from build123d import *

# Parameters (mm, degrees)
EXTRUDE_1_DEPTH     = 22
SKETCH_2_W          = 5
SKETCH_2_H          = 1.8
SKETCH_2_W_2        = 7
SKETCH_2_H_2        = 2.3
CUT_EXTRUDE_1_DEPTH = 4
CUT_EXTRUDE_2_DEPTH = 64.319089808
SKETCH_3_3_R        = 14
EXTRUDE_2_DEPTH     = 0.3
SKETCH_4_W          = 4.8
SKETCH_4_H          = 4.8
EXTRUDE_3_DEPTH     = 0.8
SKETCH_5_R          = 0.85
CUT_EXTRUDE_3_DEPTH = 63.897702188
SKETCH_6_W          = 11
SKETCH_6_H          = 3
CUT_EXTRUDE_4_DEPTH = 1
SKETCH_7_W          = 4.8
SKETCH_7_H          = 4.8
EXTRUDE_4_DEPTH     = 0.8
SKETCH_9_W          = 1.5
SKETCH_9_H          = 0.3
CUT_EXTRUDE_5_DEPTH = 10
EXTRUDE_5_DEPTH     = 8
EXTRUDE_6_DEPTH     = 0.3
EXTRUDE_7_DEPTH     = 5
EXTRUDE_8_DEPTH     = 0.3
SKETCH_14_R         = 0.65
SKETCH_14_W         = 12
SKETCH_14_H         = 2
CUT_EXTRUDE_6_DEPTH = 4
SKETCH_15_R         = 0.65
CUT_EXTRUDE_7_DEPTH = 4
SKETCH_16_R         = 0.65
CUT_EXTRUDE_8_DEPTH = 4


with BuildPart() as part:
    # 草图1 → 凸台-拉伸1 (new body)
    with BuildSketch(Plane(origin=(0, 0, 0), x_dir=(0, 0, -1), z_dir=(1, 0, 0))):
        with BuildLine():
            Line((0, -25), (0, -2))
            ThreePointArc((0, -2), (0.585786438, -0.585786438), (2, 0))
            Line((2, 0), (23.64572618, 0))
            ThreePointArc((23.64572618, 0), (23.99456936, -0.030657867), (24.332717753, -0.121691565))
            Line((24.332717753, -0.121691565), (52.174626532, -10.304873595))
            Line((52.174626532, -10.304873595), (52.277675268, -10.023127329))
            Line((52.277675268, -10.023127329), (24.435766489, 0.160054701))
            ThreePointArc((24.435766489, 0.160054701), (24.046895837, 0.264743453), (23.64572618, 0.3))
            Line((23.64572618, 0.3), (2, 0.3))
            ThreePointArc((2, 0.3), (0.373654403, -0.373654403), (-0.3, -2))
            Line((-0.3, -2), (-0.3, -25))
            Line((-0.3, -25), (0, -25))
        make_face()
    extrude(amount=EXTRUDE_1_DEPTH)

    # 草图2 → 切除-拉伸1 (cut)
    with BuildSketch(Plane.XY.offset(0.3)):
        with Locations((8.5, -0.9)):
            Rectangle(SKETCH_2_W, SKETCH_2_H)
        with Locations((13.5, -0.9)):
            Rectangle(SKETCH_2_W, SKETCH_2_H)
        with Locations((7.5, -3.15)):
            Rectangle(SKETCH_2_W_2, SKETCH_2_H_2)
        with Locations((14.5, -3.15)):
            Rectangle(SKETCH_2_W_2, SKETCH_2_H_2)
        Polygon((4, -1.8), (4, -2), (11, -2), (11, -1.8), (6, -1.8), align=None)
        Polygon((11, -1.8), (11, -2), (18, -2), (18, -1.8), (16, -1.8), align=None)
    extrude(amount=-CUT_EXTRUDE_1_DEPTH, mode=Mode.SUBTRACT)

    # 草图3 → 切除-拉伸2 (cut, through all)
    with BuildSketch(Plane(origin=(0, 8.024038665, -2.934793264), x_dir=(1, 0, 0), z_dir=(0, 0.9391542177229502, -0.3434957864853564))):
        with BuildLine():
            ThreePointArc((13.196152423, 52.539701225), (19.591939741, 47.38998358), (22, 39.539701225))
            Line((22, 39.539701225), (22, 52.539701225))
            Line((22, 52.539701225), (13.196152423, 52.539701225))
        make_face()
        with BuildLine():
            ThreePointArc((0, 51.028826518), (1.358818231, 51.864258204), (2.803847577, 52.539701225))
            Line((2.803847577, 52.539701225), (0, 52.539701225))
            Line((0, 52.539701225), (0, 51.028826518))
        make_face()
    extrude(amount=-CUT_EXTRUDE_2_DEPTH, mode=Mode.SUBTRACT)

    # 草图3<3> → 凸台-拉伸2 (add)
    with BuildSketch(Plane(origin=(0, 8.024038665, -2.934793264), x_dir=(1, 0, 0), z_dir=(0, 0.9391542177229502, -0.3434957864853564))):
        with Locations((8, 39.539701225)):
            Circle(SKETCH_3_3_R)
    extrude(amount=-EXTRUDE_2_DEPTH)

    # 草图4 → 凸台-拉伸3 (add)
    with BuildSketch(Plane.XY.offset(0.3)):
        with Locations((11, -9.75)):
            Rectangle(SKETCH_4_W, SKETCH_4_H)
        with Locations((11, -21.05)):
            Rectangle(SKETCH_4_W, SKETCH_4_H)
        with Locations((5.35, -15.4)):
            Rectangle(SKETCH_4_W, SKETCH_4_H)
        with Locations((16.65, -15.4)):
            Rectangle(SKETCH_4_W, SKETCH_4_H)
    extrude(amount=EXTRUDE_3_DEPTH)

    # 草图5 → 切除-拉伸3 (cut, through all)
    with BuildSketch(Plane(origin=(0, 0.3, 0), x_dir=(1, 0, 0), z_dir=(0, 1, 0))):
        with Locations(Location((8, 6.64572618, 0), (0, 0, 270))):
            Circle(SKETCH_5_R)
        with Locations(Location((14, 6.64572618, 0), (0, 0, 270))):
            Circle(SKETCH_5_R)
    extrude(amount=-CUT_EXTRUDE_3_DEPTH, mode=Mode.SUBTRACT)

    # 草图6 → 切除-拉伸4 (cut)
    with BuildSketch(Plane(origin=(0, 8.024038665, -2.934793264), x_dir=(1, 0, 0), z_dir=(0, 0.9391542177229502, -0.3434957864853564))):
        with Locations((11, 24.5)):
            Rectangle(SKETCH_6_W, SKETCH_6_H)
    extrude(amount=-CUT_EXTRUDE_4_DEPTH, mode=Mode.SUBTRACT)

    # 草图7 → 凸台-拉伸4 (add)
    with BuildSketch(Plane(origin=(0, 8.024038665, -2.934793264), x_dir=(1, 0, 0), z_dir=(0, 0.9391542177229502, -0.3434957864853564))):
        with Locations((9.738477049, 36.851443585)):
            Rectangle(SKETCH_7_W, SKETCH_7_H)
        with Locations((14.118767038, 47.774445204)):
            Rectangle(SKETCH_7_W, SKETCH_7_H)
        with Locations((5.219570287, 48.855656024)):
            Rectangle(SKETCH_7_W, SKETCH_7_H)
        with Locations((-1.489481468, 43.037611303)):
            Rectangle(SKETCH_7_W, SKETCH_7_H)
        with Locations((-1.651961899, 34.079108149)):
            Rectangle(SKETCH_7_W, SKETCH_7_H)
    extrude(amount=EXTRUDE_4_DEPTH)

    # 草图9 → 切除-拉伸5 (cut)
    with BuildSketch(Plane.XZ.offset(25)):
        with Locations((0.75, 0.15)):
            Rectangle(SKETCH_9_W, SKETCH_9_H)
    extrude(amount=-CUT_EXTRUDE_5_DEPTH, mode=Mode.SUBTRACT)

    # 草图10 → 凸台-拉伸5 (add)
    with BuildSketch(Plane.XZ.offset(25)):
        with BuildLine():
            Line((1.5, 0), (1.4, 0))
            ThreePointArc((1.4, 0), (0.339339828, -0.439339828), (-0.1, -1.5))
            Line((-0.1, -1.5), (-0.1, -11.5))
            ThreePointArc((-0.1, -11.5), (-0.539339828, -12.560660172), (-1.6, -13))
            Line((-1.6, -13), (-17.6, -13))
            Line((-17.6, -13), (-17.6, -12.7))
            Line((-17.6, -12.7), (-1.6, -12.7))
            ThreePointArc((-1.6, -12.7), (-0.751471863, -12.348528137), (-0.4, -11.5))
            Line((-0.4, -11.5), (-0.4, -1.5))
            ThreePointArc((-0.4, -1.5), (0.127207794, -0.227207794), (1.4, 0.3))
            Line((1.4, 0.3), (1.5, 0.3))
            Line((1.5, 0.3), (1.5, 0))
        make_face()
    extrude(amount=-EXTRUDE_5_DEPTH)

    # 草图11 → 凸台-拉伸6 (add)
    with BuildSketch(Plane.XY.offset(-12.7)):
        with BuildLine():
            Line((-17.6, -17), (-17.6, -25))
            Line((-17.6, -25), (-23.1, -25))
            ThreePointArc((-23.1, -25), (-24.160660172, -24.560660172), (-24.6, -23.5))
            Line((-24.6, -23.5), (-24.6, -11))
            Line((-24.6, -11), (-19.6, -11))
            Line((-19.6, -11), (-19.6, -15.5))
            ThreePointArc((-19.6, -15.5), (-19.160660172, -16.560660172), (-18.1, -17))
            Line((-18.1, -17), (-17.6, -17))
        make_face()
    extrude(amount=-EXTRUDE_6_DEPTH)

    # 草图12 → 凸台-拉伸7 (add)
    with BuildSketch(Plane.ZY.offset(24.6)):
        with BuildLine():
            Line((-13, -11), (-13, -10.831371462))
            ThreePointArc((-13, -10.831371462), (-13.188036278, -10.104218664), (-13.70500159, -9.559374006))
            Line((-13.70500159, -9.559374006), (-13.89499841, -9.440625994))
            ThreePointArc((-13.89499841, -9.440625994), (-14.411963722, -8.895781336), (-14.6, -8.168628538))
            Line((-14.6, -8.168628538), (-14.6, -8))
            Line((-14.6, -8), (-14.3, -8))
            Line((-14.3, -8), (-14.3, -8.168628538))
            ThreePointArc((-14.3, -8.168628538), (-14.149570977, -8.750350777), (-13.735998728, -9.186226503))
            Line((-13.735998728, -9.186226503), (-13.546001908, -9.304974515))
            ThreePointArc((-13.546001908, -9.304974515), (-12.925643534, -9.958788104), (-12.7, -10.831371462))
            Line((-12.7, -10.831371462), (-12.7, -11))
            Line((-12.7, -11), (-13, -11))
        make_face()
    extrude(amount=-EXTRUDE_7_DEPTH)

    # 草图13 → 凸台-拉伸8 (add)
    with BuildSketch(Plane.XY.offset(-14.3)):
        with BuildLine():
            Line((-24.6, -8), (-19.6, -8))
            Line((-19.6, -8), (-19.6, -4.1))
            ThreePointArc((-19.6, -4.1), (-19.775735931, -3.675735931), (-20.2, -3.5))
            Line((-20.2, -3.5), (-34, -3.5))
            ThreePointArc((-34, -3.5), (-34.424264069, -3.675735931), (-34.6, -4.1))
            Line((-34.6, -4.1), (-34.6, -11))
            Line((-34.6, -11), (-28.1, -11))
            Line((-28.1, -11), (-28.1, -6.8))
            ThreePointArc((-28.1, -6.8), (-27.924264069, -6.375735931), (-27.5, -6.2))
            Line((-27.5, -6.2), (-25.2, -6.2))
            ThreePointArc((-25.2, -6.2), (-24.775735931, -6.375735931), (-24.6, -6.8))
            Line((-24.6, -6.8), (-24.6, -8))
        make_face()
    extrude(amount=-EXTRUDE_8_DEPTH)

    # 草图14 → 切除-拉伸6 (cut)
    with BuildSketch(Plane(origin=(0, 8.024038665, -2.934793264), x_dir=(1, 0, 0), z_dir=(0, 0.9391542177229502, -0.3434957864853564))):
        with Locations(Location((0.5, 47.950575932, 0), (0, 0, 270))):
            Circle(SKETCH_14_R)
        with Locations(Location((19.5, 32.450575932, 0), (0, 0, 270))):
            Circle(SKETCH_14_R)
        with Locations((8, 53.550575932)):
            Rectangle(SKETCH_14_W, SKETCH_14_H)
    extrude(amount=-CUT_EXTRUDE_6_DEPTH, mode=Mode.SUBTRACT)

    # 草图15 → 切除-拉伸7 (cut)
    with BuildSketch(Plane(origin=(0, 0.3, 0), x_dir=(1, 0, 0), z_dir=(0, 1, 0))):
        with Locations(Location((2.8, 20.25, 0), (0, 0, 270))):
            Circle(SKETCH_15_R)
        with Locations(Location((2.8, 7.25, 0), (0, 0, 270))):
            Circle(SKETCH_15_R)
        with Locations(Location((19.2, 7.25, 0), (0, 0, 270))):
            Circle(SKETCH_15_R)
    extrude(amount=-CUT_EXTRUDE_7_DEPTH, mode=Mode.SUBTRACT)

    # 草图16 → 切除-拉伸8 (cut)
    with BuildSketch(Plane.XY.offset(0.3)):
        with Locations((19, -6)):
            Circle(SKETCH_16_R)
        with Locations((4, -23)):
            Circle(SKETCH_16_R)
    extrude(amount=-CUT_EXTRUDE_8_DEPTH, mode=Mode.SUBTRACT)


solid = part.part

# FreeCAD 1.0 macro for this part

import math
import FreeCAD as App
import Part
import Sketcher
Q = App.Units.Quantity


def add_polygon(sketch, points):
    """Adds a closed chain of lines whose ends are joined by coincident constraints."""
    first, n = sketch.GeometryCount, len(points)
    for a, b in zip(points, points[1:] + points[:1]):
        sketch.addGeometry(Part.LineSegment(App.Vector(*a, 0), App.Vector(*b, 0)), False)
    for i in range(n):
        sketch.addConstraint(Sketcher.Constraint("Coincident", first + i, 2, first + (i + 1) % n, 1))

doc = App.newDocument("Part")
body = doc.addObject("PartDesign::Body", "Body")

# Sketch on YZ plane
sketch1 = body.newObject("Sketcher::SketchObject", "Sketch")
sketch1.AttachmentSupport = (doc.getObject("YZ_Plane"), [""])
sketch1.MapMode = "FlatFace"
sketch1.addGeometry(Part.LineSegment(App.Vector(-25, 0, 0), App.Vector(-2, 0, 0)), False)
sketch1.addGeometry(Part.ArcOfCircle(Part.Circle(App.Vector(-2, -2, 0), App.Vector(0, 0, 1), 2), math.radians(0), math.radians(90)), False)
sketch1.addGeometry(Part.LineSegment(App.Vector(0, -2, 0), App.Vector(0, -23.65, 0)), False)
sketch1.addGeometry(Part.ArcOfCircle(Part.Circle(App.Vector(-2, -23.65, 0), App.Vector(0, 0, 1), 2), math.radians(-20), math.radians(0)), False)
sketch1.addGeometry(Part.LineSegment(App.Vector(-0.12, -24.33, 0), App.Vector(-10.3, -52.17, 0)), False)
sketch1.addGeometry(Part.LineSegment(App.Vector(-10.3, -52.17, 0), App.Vector(-10.02, -52.28, 0)), False)
sketch1.addGeometry(Part.LineSegment(App.Vector(-10.02, -52.28, 0), App.Vector(0.16, -24.44, 0)), False)
sketch1.addGeometry(Part.ArcOfCircle(Part.Circle(App.Vector(-2, -23.65, 0), App.Vector(0, 0, 1), 2.3), math.radians(-20), math.radians(0)), False)
sketch1.addGeometry(Part.LineSegment(App.Vector(0.3, -23.65, 0), App.Vector(0.3, -2, 0)), False)
sketch1.addGeometry(Part.ArcOfCircle(Part.Circle(App.Vector(-2, -2, 0), App.Vector(0, 0, 1), 2.3), math.radians(0), math.radians(90)), False)
sketch1.addGeometry(Part.LineSegment(App.Vector(-2, 0.3, 0), App.Vector(-25, 0.3, 0)), False)
sketch1.addGeometry(Part.LineSegment(App.Vector(-25, 0.3, 0), App.Vector(-25, 0, 0)), False)
sketch1.addConstraint(Sketcher.Constraint("Tangent", 0, 2, 1, 2))
sketch1.addConstraint(Sketcher.Constraint("Tangent", 1, 1, 2, 1))
sketch1.addConstraint(Sketcher.Constraint("Tangent", 2, 2, 3, 2))
sketch1.addConstraint(Sketcher.Constraint("Tangent", 3, 1, 4, 1))
sketch1.addConstraint(Sketcher.Constraint("Coincident", 4, 2, 5, 1))
sketch1.addConstraint(Sketcher.Constraint("Coincident", 5, 2, 6, 1))
sketch1.addConstraint(Sketcher.Constraint("Tangent", 6, 2, 7, 1))
sketch1.addConstraint(Sketcher.Constraint("Tangent", 7, 2, 8, 1))
sketch1.addConstraint(Sketcher.Constraint("Tangent", 8, 2, 9, 1))
sketch1.addConstraint(Sketcher.Constraint("Tangent", 9, 2, 10, 1))
sketch1.addConstraint(Sketcher.Constraint("Coincident", 10, 2, 11, 1))
sketch1.addConstraint(Sketcher.Constraint("Coincident", 11, 2, 0, 1))
sketch1.addConstraint(Sketcher.Constraint("Horizontal", 0))
sketch1.addConstraint(Sketcher.Constraint("Vertical", 2))
sketch1.addConstraint(Sketcher.Constraint("Vertical", 8))
sketch1.addConstraint(Sketcher.Constraint("Horizontal", 10))
sketch1.addConstraint(Sketcher.Constraint("Vertical", 11))
sketch1.addConstraint(Sketcher.Constraint("Coincident", 7, 3, 3, 3))
sketch1.addConstraint(Sketcher.Constraint("Coincident", 9, 3, 1, 3))
sketch1.addConstraint(Sketcher.Constraint("Equal", 1, 3))
sketch1.addConstraint(Sketcher.Constraint("PointOnObject", 0, 2, -1))
sketch1.addConstraint(Sketcher.Constraint("PointOnObject", 1, 1, -2))
sketch1.addConstraint(Sketcher.Constraint("Perpendicular", 4, 5))
sketch1.addConstraint(Sketcher.Constraint("Perpendicular", 5, 6))
sketch1.addConstraint(Sketcher.Constraint("Radius", 1, 2.0))
sketch1.addConstraint(Sketcher.Constraint("Radius", 7, 2.3))
sketch1.addConstraint(Sketcher.Constraint("DistanceX", 0, 1, 0, 2, 23.0))
sketch1.addConstraint(Sketcher.Constraint("Angle", 4, Q("-110.09 deg")))
sketch1.addConstraint(Sketcher.Constraint("DistanceY", 4, 2, 7, 3, 28.5289))
sketch1.addConstraint(Sketcher.Constraint("DistanceY", 2, 2, 2, 1, 21.645726))
pad1 = body.newObject("PartDesign::Pad", "Pad")
pad1.Profile = sketch1
pad1.Length = 22

# Sketch on XY plane
sketch2 = body.newObject("Sketcher::SketchObject", "Sketch001")
sketch2.AttachmentSupport = (doc.getObject("XY_Plane"), [""])
sketch2.MapMode = "FlatFace"
sketch2.AttachmentOffset = App.Placement(App.Vector(0, 0, 0.3), App.Rotation())
add_polygon(sketch2, [(6, 0), (6, -1.8), (4, -1.8), (4, -4.3), (18, -4.3), (18, -1.8), (16, -1.8), (16, 0)])  # lines 0-7
sketch2.addConstraint(Sketcher.Constraint("Vertical", 0))
sketch2.addConstraint(Sketcher.Constraint("Horizontal", 1))
sketch2.addConstraint(Sketcher.Constraint("Vertical", 2))
sketch2.addConstraint(Sketcher.Constraint("Horizontal", 3))
sketch2.addConstraint(Sketcher.Constraint("Vertical", 4))
sketch2.addConstraint(Sketcher.Constraint("Horizontal", 5))
sketch2.addConstraint(Sketcher.Constraint("Vertical", 6))
sketch2.addConstraint(Sketcher.Constraint("Horizontal", 7))
sketch2.addConstraint(Sketcher.Constraint("PointOnObject", 6, 2, -1))
sketch2.addConstraint(Sketcher.Constraint("Horizontal", 1, 2, 4, 2))
sketch2.addConstraint(Sketcher.Constraint("Equal", 1, 5))
sketch2.addConstraint(Sketcher.Constraint("DistanceX", 1, 2, 1, 1, 2.0))
sketch2.addConstraint(Sketcher.Constraint("DistanceX", 3, 1, 3, 2, 14.0))
sketch2.addConstraint(Sketcher.Constraint("DistanceY", 0, 2, 0, 1, 1.8))
sketch2.addConstraint(Sketcher.Constraint("DistanceY", 2, 2, 2, 1, 2.5))
sketch2.addConstraint(Sketcher.Constraint("DistanceX", -1, 1, 0, 2, 6.0))
pocket1 = body.newObject("PartDesign::Pocket", "Pocket")
pocket1.Profile = sketch2
pocket1.Length = 4

# Sketch on an angled plane
sketch3 = body.newObject("Sketcher::SketchObject", "Sketch002")
sketch3.Placement = App.Placement(App.Vector(0, 8.024039, -2.934793), App.Rotation(App.Vector(1, 0, 0), App.Vector(0, -0.343495786, -0.939154218), App.Vector(0, 0.939154218, -0.343495786), "ZXY"))
sketch3.addGeometry(Part.ArcOfCircle(Part.Circle(App.Vector(8, 39.5, 0), App.Vector(0, 0, 1), 14), math.radians(0), math.radians(68)), False)
sketch3.addGeometry(Part.LineSegment(App.Vector(22, 39.5, 0), App.Vector(22, 52.5, 0)), False)
sketch3.addGeometry(Part.LineSegment(App.Vector(22, 52.5, 0), App.Vector(13.2, 52.5, 0)), False)
sketch3.addGeometry(Part.ArcOfCircle(Part.Circle(App.Vector(8, 39.5, 0), App.Vector(0, 0, 1), 14), math.radians(111.79), math.radians(124.85)), False)
sketch3.addGeometry(Part.LineSegment(App.Vector(2.8, 52.5, 0), App.Vector(0, 52.5, 0)), False)
sketch3.addGeometry(Part.LineSegment(App.Vector(0, 52.5, 0), App.Vector(0, 51, 0)), False)
sketch3.addConstraint(Sketcher.Constraint("Tangent", 0, 1, 1, 1))
sketch3.addConstraint(Sketcher.Constraint("Coincident", 1, 2, 2, 1))
sketch3.addConstraint(Sketcher.Constraint("Coincident", 2, 2, 0, 2))
sketch3.addConstraint(Sketcher.Constraint("Coincident", 3, 1, 4, 1))
sketch3.addConstraint(Sketcher.Constraint("Coincident", 4, 2, 5, 1))
sketch3.addConstraint(Sketcher.Constraint("Coincident", 5, 2, 3, 2))
sketch3.addConstraint(Sketcher.Constraint("Vertical", 1))
sketch3.addConstraint(Sketcher.Constraint("Horizontal", 2))
sketch3.addConstraint(Sketcher.Constraint("Horizontal", 4))
sketch3.addConstraint(Sketcher.Constraint("Vertical", 5))
sketch3.addConstraint(Sketcher.Constraint("Coincident", 3, 3, 0, 3))
sketch3.addConstraint(Sketcher.Constraint("Equal", 0, 3))
sketch3.addConstraint(Sketcher.Constraint("PointOnObject", 4, 2, -2))
sketch3.addConstraint(Sketcher.Constraint("Horizontal", 2, 2, 3, 1))
sketch3.addConstraint(Sketcher.Constraint("Radius", 0, 14.0))
sketch3.addConstraint(Sketcher.Constraint("DistanceY", 1, 1, 1, 2, 13.0))
sketch3.addConstraint(Sketcher.Constraint("DistanceX", -1, 1, 0, 3, 8.0))
sketch3.addConstraint(Sketcher.Constraint("DistanceY", -1, 1, 0, 3, 39.539701))
pocket2 = body.newObject("PartDesign::Pocket", "Pocket001")
pocket2.Profile = sketch3
pocket2.Type = "ThroughAll"

# Sketch on an angled plane
sketch4 = body.newObject("Sketcher::SketchObject", "Sketch003")
sketch4.Placement = App.Placement(App.Vector(0, 8.024039, -2.934793), App.Rotation(App.Vector(1, 0, 0), App.Vector(0, -0.343495786, -0.939154218), App.Vector(0, 0.939154218, -0.343495786), "ZXY"))
sketch4.addGeometry(Part.Circle(App.Vector(8, 40, 0), App.Vector(0, 0, 1), 14), False)
sketch4.addConstraint(Sketcher.Constraint("Diameter", 0, 28.0))
sketch4.addConstraint(Sketcher.Constraint("DistanceX", -1, 1, 0, 3, 8.0))
sketch4.addConstraint(Sketcher.Constraint("DistanceY", -1, 1, 0, 3, 39.539701))
pad2 = body.newObject("PartDesign::Pad", "Pad001")
pad2.Profile = sketch4
pad2.Length = 0.3
pad2.Reversed = True

# Sketch on XY plane
sketch5 = body.newObject("Sketcher::SketchObject", "Sketch004")
sketch5.AttachmentSupport = (doc.getObject("XY_Plane"), [""])
sketch5.MapMode = "FlatFace"
sketch5.AttachmentOffset = App.Placement(App.Vector(0, 0, 0.3), App.Rotation())
add_polygon(sketch5, [(8.6, -7.3), (8.6, -12.2), (13.4, -12.2), (13.4, -7.3)])  # lines 0-3
add_polygon(sketch5, [(8.6, -18.6), (8.6, -23.4), (13.4, -23.4), (13.4, -18.6)])  # lines 4-7
add_polygon(sketch5, [(3, -13), (3, -17.8), (7.8, -17.8), (7.8, -13)])  # lines 8-11
add_polygon(sketch5, [(14.2, -13), (14.2, -17.8), (19.1, -17.8), (19.1, -13)])  # lines 12-15
sketch5.addConstraint(Sketcher.Constraint("Vertical", 0))
sketch5.addConstraint(Sketcher.Constraint("Horizontal", 1))
sketch5.addConstraint(Sketcher.Constraint("Vertical", 2))
sketch5.addConstraint(Sketcher.Constraint("Horizontal", 3))
sketch5.addConstraint(Sketcher.Constraint("Vertical", 4))
sketch5.addConstraint(Sketcher.Constraint("Horizontal", 5))
sketch5.addConstraint(Sketcher.Constraint("Vertical", 6))
sketch5.addConstraint(Sketcher.Constraint("Horizontal", 7))
sketch5.addConstraint(Sketcher.Constraint("Vertical", 8))
sketch5.addConstraint(Sketcher.Constraint("Horizontal", 9))
sketch5.addConstraint(Sketcher.Constraint("Vertical", 10))
sketch5.addConstraint(Sketcher.Constraint("Horizontal", 11))
sketch5.addConstraint(Sketcher.Constraint("Vertical", 12))
sketch5.addConstraint(Sketcher.Constraint("Horizontal", 13))
sketch5.addConstraint(Sketcher.Constraint("Vertical", 14))
sketch5.addConstraint(Sketcher.Constraint("Horizontal", 15))
sketch5.addConstraint(Sketcher.Constraint("Horizontal", 9, 2, 12, 2))
sketch5.addConstraint(Sketcher.Constraint("Horizontal", 11, 2, 14, 2))
sketch5.addConstraint(Sketcher.Constraint("Vertical", 3, 2, 4, 2))
sketch5.addConstraint(Sketcher.Constraint("Vertical", 2, 2, 5, 2))
sketch5.addConstraint(Sketcher.Constraint("Equal", 7, 9))
sketch5.addConstraint(Sketcher.Constraint("Equal", 11, 13))
sketch5.addConstraint(Sketcher.Constraint("Equal", 15, 0))
sketch5.addConstraint(Sketcher.Constraint("Equal", 2, 4))
sketch5.addConstraint(Sketcher.Constraint("Equal", 6, 8))
sketch5.addConstraint(Sketcher.Constraint("DistanceX", 1, 1, 1, 2, 4.8))
sketch5.addConstraint(Sketcher.Constraint("DistanceY", 10, 2, -1, 1, 13.0))
sketch5.addConstraint(Sketcher.Constraint("DistanceX", -1, 1, 0, 2, 8.6))
sketch5.addConstraint(Sketcher.Constraint("DistanceY", 4, 2, 0, 2, 11.3))
sketch5.addConstraint(Sketcher.Constraint("DistanceX", 9, 2, 12, 2, 6.5))
sketch5.addConstraint(Sketcher.Constraint("DistanceY", 0, 2, -1, 1, 12.15))
sketch5.addConstraint(Sketcher.Constraint("DistanceX", -1, 1, 8, 2, 2.95))
pad3 = body.newObject("PartDesign::Pad", "Pad002")
pad3.Profile = sketch5
pad3.Length = 0.8

# Sketch on XZ plane
sketch6 = body.newObject("Sketcher::SketchObject", "Sketch005")
sketch6.AttachmentSupport = (doc.getObject("XZ_Plane"), [""])
sketch6.MapMode = "FlatFace"
sketch6.AttachmentOffset = App.Placement(App.Vector(0, 0, -0.3), App.Rotation())
sketch6.addGeometry(Part.Circle(App.Vector(8, -6.6, 0), App.Vector(0, 0, 1), 0.8), False)
sketch6.addGeometry(Part.Circle(App.Vector(14, -6.6, 0), App.Vector(0, 0, 1), 0.8), False)
sketch6.addConstraint(Sketcher.Constraint("Equal", 0, 1))
sketch6.addConstraint(Sketcher.Constraint("Horizontal", 0, 3, 1, 3))
sketch6.addConstraint(Sketcher.Constraint("Diameter", 0, 1.7))
sketch6.addConstraint(Sketcher.Constraint("DistanceX", -1, 1, 0, 3, 8.0))
sketch6.addConstraint(Sketcher.Constraint("DistanceX", -1, 1, 1, 3, 14.0))
sketch6.addConstraint(Sketcher.Constraint("DistanceY", 0, 3, -1, 1, 6.645726))
pocket3 = body.newObject("PartDesign::Pocket", "Pocket002")
pocket3.Profile = sketch6
pocket3.Type = "ThroughAll"
pocket3.Reversed = True

# Sketch on an angled plane
sketch7 = body.newObject("Sketcher::SketchObject", "Sketch006")
sketch7.Placement = App.Placement(App.Vector(0, 8.024039, -2.934793), App.Rotation(App.Vector(1, 0, 0), App.Vector(0, -0.343495786, -0.939154218), App.Vector(0, 0.939154218, -0.343495786), "ZXY"))
add_polygon(sketch7, [(5.5, 26), (5.5, 23), (16.5, 23), (16.5, 26)])  # lines 0-3
sketch7.addConstraint(Sketcher.Constraint("Vertical", 0))
sketch7.addConstraint(Sketcher.Constraint("Horizontal", 1))
sketch7.addConstraint(Sketcher.Constraint("Vertical", 2))
sketch7.addConstraint(Sketcher.Constraint("Horizontal", 3))
sketch7.addConstraint(Sketcher.Constraint("DistanceX", 1, 1, 1, 2, 11.0))
sketch7.addConstraint(Sketcher.Constraint("DistanceY", 0, 2, 0, 1, 3.0))
sketch7.addConstraint(Sketcher.Constraint("DistanceY", -1, 1, 0, 2, 23.0))
sketch7.addConstraint(Sketcher.Constraint("DistanceX", -1, 1, 0, 2, 5.5))
pocket4 = body.newObject("PartDesign::Pocket", "Pocket003")
pocket4.Profile = sketch7
pocket4.Length = 1

# Sketch on an angled plane
sketch8 = body.newObject("Sketcher::SketchObject", "Sketch007")
sketch8.Placement = App.Placement(App.Vector(0, 8.024039, -2.934793), App.Rotation(App.Vector(1, 0, 0), App.Vector(0, -0.343495786, -0.939154218), App.Vector(0, 0.939154218, -0.343495786), "ZXY"))
add_polygon(sketch8, [(7.3, 39.3), (7.3, 34.5), (12.1, 34.5), (12.1, 39.3)])  # lines 0-3
add_polygon(sketch8, [(11.7, 50.2), (11.7, 45.4), (16.5, 45.4), (16.5, 50.2)])  # lines 4-7
add_polygon(sketch8, [(2.8, 51.3), (2.8, 46.5), (7.6, 46.5), (7.6, 51.3)])  # lines 8-11
add_polygon(sketch8, [(-3.9, 45.4), (-3.9, 40.6), (0.9, 40.6), (0.9, 45.4)])  # lines 12-15
add_polygon(sketch8, [(-4.1, 36.5), (-4.1, 31.7), (0.7, 31.7), (0.7, 36.5)])  # lines 16-19
sketch8.addConstraint(Sketcher.Constraint("Vertical", 0))
sketch8.addConstraint(Sketcher.Constraint("Horizontal", 1))
sketch8.addConstraint(Sketcher.Constraint("Vertical", 2))
sketch8.addConstraint(Sketcher.Constraint("Horizontal", 3))
sketch8.addConstraint(Sketcher.Constraint("Vertical", 4))
sketch8.addConstraint(Sketcher.Constraint("Horizontal", 5))
sketch8.addConstraint(Sketcher.Constraint("Vertical", 6))
sketch8.addConstraint(Sketcher.Constraint("Horizontal", 7))
sketch8.addConstraint(Sketcher.Constraint("Vertical", 8))
sketch8.addConstraint(Sketcher.Constraint("Horizontal", 9))
sketch8.addConstraint(Sketcher.Constraint("Vertical", 10))
sketch8.addConstraint(Sketcher.Constraint("Horizontal", 11))
sketch8.addConstraint(Sketcher.Constraint("Vertical", 12))
sketch8.addConstraint(Sketcher.Constraint("Horizontal", 13))
sketch8.addConstraint(Sketcher.Constraint("Vertical", 14))
sketch8.addConstraint(Sketcher.Constraint("Horizontal", 15))
sketch8.addConstraint(Sketcher.Constraint("Vertical", 16))
sketch8.addConstraint(Sketcher.Constraint("Horizontal", 17))
sketch8.addConstraint(Sketcher.Constraint("Vertical", 18))
sketch8.addConstraint(Sketcher.Constraint("Horizontal", 19))
sketch8.addConstraint(Sketcher.Constraint("Equal", 3, 5))
sketch8.addConstraint(Sketcher.Constraint("Equal", 7, 9))
sketch8.addConstraint(Sketcher.Constraint("Equal", 11, 13))
sketch8.addConstraint(Sketcher.Constraint("Equal", 15, 17))
sketch8.addConstraint(Sketcher.Constraint("Equal", 19, 0))
sketch8.addConstraint(Sketcher.Constraint("Equal", 2, 4))
sketch8.addConstraint(Sketcher.Constraint("Equal", 6, 8))
sketch8.addConstraint(Sketcher.Constraint("Equal", 10, 12))
sketch8.addConstraint(Sketcher.Constraint("Equal", 14, 16))
sketch8.addConstraint(Sketcher.Constraint("DistanceX", 1, 1, 1, 2, 4.8))
sketch8.addConstraint(Sketcher.Constraint("DistanceY", 2, 2, 4, 2, 6.123002))
sketch8.addConstraint(Sketcher.Constraint("DistanceX", -1, 1, 8, 2, 2.81957))
sketch8.addConstraint(Sketcher.Constraint("DistanceX", 12, 2, -1, 1, 3.889481))
sketch8.addConstraint(Sketcher.Constraint("DistanceY", -1, 1, 12, 2, 40.637611))
sketch8.addConstraint(Sketcher.Constraint("DistanceX", 16, 2, -1, 1, 4.051962))
sketch8.addConstraint(Sketcher.Constraint("DistanceY", -1, 1, 16, 2, 31.679108))
sketch8.addConstraint(Sketcher.Constraint("DistanceX", 4, 2, 2, 2, 0.41971))
sketch8.addConstraint(Sketcher.Constraint("DistanceY", 4, 2, 8, 2, 1.081211))
sketch8.addConstraint(Sketcher.Constraint("DistanceX", 12, 2, 3, 2, 11.227959))
sketch8.addConstraint(Sketcher.Constraint("DistanceY", -1, 1, 0, 2, 34.451444))
pad4 = body.newObject("PartDesign::Pad", "Pad003")
pad4.Profile = sketch8
pad4.Length = 0.8

# Sketch on XZ plane
sketch9 = body.newObject("Sketcher::SketchObject", "Sketch008")
sketch9.AttachmentSupport = (doc.getObject("XZ_Plane"), [""])
sketch9.MapMode = "FlatFace"
sketch9.AttachmentOffset = App.Placement(App.Vector(0, 0, 25), App.Rotation())
add_polygon(sketch9, [(0, 0.3), (0, 0), (1.5, 0), (1.5, 0.3)])  # lines 0-3
sketch9.addConstraint(Sketcher.Constraint("Vertical", 0))
sketch9.addConstraint(Sketcher.Constraint("Horizontal", 1))
sketch9.addConstraint(Sketcher.Constraint("Vertical", 2))
sketch9.addConstraint(Sketcher.Constraint("Horizontal", 3))
sketch9.addConstraint(Sketcher.Constraint("Coincident", 0, 2, -1, 1))
sketch9.addConstraint(Sketcher.Constraint("DistanceX", 1, 1, 1, 2, 1.5))
sketch9.addConstraint(Sketcher.Constraint("DistanceY", 0, 2, 0, 1, 0.3))
pocket5 = body.newObject("PartDesign::Pocket", "Pocket004")
pocket5.Profile = sketch9
pocket5.Length = 10

# Sketch on XZ plane
sketch10 = body.newObject("Sketcher::SketchObject", "Sketch009")
sketch10.AttachmentSupport = (doc.getObject("XZ_Plane"), [""])
sketch10.MapMode = "FlatFace"
sketch10.AttachmentOffset = App.Placement(App.Vector(0, 0, 25), App.Rotation())
sketch10.addGeometry(Part.LineSegment(App.Vector(1.4, 0, 0), App.Vector(1.5, 0, 0)), False)
sketch10.addGeometry(Part.LineSegment(App.Vector(1.5, 0, 0), App.Vector(1.5, 0.3, 0)), False)
sketch10.addGeometry(Part.LineSegment(App.Vector(1.5, 0.3, 0), App.Vector(1.4, 0.3, 0)), False)
sketch10.addGeometry(Part.ArcOfCircle(Part.Circle(App.Vector(1.4, -1.5, 0), App.Vector(0, 0, 1), 1.8), math.radians(90), math.radians(180)), False)
sketch10.addGeometry(Part.LineSegment(App.Vector(-0.4, -1.5, 0), App.Vector(-0.4, -11.5, 0)), False)
sketch10.addGeometry(Part.ArcOfCircle(Part.Circle(App.Vector(-1.6, -11.5, 0), App.Vector(0, 0, 1), 1.2), math.radians(-90), math.radians(0)), False)
sketch10.addGeometry(Part.LineSegment(App.Vector(-1.6, -12.7, 0), App.Vector(-17.6, -12.7, 0)), False)
sketch10.addGeometry(Part.LineSegment(App.Vector(-17.6, -12.7, 0), App.Vector(-17.6, -13, 0)), False)
sketch10.addGeometry(Part.LineSegment(App.Vector(-17.6, -13, 0), App.Vector(-1.6, -13, 0)), False)
sketch10.addGeometry(Part.ArcOfCircle(Part.Circle(App.Vector(-1.6, -11.5, 0), App.Vector(0, 0, 1), 1.5), math.radians(-90), math.radians(0)), False)
sketch10.addGeometry(Part.LineSegment(App.Vector(-0.1, -11.5, 0), App.Vector(-0.1, -1.5, 0)), False)
sketch10.addGeometry(Part.ArcOfCircle(Part.Circle(App.Vector(1.4, -1.5, 0), App.Vector(0, 0, 1), 1.5), math.radians(90), math.radians(180)), False)
sketch10.addConstraint(Sketcher.Constraint("Coincident", 0, 2, 1, 1))
sketch10.addConstraint(Sketcher.Constraint("Coincident", 1, 2, 2, 1))
sketch10.addConstraint(Sketcher.Constraint("Tangent", 2, 2, 3, 1))
sketch10.addConstraint(Sketcher.Constraint("Tangent", 3, 2, 4, 1))
sketch10.addConstraint(Sketcher.Constraint("Tangent", 4, 2, 5, 2))
sketch10.addConstraint(Sketcher.Constraint("Tangent", 5, 1, 6, 1))
sketch10.addConstraint(Sketcher.Constraint("Coincident", 6, 2, 7, 1))
sketch10.addConstraint(Sketcher.Constraint("Coincident", 7, 2, 8, 1))
sketch10.addConstraint(Sketcher.Constraint("Tangent", 8, 2, 9, 1))
sketch10.addConstraint(Sketcher.Constraint("Tangent", 9, 2, 10, 1))
sketch10.addConstraint(Sketcher.Constraint("Tangent", 10, 2, 11, 2))
sketch10.addConstraint(Sketcher.Constraint("Tangent", 11, 1, 0, 1))
sketch10.addConstraint(Sketcher.Constraint("Horizontal", 0))
sketch10.addConstraint(Sketcher.Constraint("Vertical", 1))
sketch10.addConstraint(Sketcher.Constraint("Horizontal", 2))
sketch10.addConstraint(Sketcher.Constraint("Vertical", 4))
sketch10.addConstraint(Sketcher.Constraint("Horizontal", 6))
sketch10.addConstraint(Sketcher.Constraint("Vertical", 7))
sketch10.addConstraint(Sketcher.Constraint("Horizontal", 8))
sketch10.addConstraint(Sketcher.Constraint("Vertical", 10))
sketch10.addConstraint(Sketcher.Constraint("Coincident", 9, 3, 5, 3))
sketch10.addConstraint(Sketcher.Constraint("Coincident", 11, 3, 3, 3))
sketch10.addConstraint(Sketcher.Constraint("Equal", 9, 11))
sketch10.addConstraint(Sketcher.Constraint("PointOnObject", 0, 2, -1))
sketch10.addConstraint(Sketcher.Constraint("Radius", 3, 1.8))
sketch10.addConstraint(Sketcher.Constraint("Radius", 5, 1.2))
sketch10.addConstraint(Sketcher.Constraint("DistanceX", 6, 2, 6, 1, 16.0))
sketch10.addConstraint(Sketcher.Constraint("DistanceY", 4, 2, 4, 1, 10.0))
sketch10.addConstraint(Sketcher.Constraint("DistanceX", 0, 1, 0, 2, 0.1))
sketch10.addConstraint(Sketcher.Constraint("DistanceX", -1, 1, 3, 3, 1.4))
pad5 = body.newObject("PartDesign::Pad", "Pad004")
pad5.Profile = sketch10
pad5.Length = 8
pad5.Reversed = True

# Sketch on XY plane
sketch11 = body.newObject("Sketcher::SketchObject", "Sketch010")
sketch11.AttachmentSupport = (doc.getObject("XY_Plane"), [""])
sketch11.MapMode = "FlatFace"
sketch11.AttachmentOffset = App.Placement(App.Vector(0, 0, -12.7), App.Rotation())
sketch11.addGeometry(Part.LineSegment(App.Vector(-17.6, -25, 0), App.Vector(-17.6, -17, 0)), False)
sketch11.addGeometry(Part.LineSegment(App.Vector(-17.6, -17, 0), App.Vector(-18.1, -17, 0)), False)
sketch11.addGeometry(Part.ArcOfCircle(Part.Circle(App.Vector(-18.1, -15.5, 0), App.Vector(0, 0, 1), 1.5), math.radians(180), math.radians(270)), False)
sketch11.addGeometry(Part.LineSegment(App.Vector(-19.6, -15.5, 0), App.Vector(-19.6, -11, 0)), False)
sketch11.addGeometry(Part.LineSegment(App.Vector(-19.6, -11, 0), App.Vector(-24.6, -11, 0)), False)
sketch11.addGeometry(Part.LineSegment(App.Vector(-24.6, -11, 0), App.Vector(-24.6, -23.5, 0)), False)
sketch11.addGeometry(Part.ArcOfCircle(Part.Circle(App.Vector(-23.1, -23.5, 0), App.Vector(0, 0, 1), 1.5), math.radians(180), math.radians(270)), False)
sketch11.addGeometry(Part.LineSegment(App.Vector(-23.1, -25, 0), App.Vector(-17.6, -25, 0)), False)
sketch11.addConstraint(Sketcher.Constraint("Coincident", 0, 2, 1, 1))
sketch11.addConstraint(Sketcher.Constraint("Tangent", 1, 2, 2, 2))
sketch11.addConstraint(Sketcher.Constraint("Tangent", 2, 1, 3, 1))
sketch11.addConstraint(Sketcher.Constraint("Coincident", 3, 2, 4, 1))
sketch11.addConstraint(Sketcher.Constraint("Coincident", 4, 2, 5, 1))
sketch11.addConstraint(Sketcher.Constraint("Tangent", 5, 2, 6, 1))
sketch11.addConstraint(Sketcher.Constraint("Tangent", 6, 2, 7, 1))
sketch11.addConstraint(Sketcher.Constraint("Coincident", 7, 2, 0, 1))
sketch11.addConstraint(Sketcher.Constraint("Vertical", 0))
sketch11.addConstraint(Sketcher.Constraint("Horizontal", 1))
sketch11.addConstraint(Sketcher.Constraint("Vertical", 3))
sketch11.addConstraint(Sketcher.Constraint("Horizontal", 4))
sketch11.addConstraint(Sketcher.Constraint("Vertical", 5))
sketch11.addConstraint(Sketcher.Constraint("Horizontal", 7))
sketch11.addConstraint(Sketcher.Constraint("Equal", 2, 6))
sketch11.addConstraint(Sketcher.Constraint("Radius", 2, 1.5))
sketch11.addConstraint(Sketcher.Constraint("DistanceX", 4, 2, 4, 1, 5.0))
sketch11.addConstraint(Sketcher.Constraint("DistanceY", 0, 1, 0, 2, 8.0))
sketch11.addConstraint(Sketcher.Constraint("DistanceX", 1, 2, 1, 1, 0.5))
sketch11.addConstraint(Sketcher.Constraint("DistanceY", 3, 1, 3, 2, 4.5))
sketch11.addConstraint(Sketcher.Constraint("DistanceY", 0, 2, -1, 1, 17.0))
sketch11.addConstraint(Sketcher.Constraint("DistanceX", 2, 3, -1, 1, 18.1))
pad6 = body.newObject("PartDesign::Pad", "Pad005")
pad6.Profile = sketch11
pad6.Length = 0.3
pad6.Reversed = True

# Sketch on YZ plane
sketch12 = body.newObject("Sketcher::SketchObject", "Sketch011")
sketch12.AttachmentSupport = (doc.getObject("YZ_Plane"), [""])
sketch12.MapMode = "FlatFace"
sketch12.AttachmentOffset = App.Placement(App.Vector(0, 0, -24.6), App.Rotation())
sketch12.addGeometry(Part.LineSegment(App.Vector(-10.83, -13, 0), App.Vector(-11, -13, 0)), False)
sketch12.addGeometry(Part.LineSegment(App.Vector(-11, -13, 0), App.Vector(-11, -12.7, 0)), False)
sketch12.addGeometry(Part.LineSegment(App.Vector(-11, -12.7, 0), App.Vector(-10.83, -12.7, 0)), False)
sketch12.addGeometry(Part.ArcOfCircle(Part.Circle(App.Vector(-10.83, -14.5, 0), App.Vector(0, 0, 1), 1.8), math.radians(32), math.radians(90)), False)
sketch12.addGeometry(Part.LineSegment(App.Vector(-9.3, -13.55, 0), App.Vector(-9.19, -13.74, 0)), False)
sketch12.addGeometry(Part.ArcOfCircle(Part.Circle(App.Vector(-8.17, -13.1, 0), App.Vector(0, 0, 1), 1.2), math.radians(-148), math.radians(-90)), False)
sketch12.addGeometry(Part.LineSegment(App.Vector(-8.17, -14.3, 0), App.Vector(-8, -14.3, 0)), False)
sketch12.addGeometry(Part.LineSegment(App.Vector(-8, -14.3, 0), App.Vector(-8, -14.6, 0)), False)
sketch12.addGeometry(Part.LineSegment(App.Vector(-8, -14.6, 0), App.Vector(-8.17, -14.6, 0)), False)
sketch12.addGeometry(Part.ArcOfCircle(Part.Circle(App.Vector(-8.17, -13.1, 0), App.Vector(0, 0, 1), 1.5), math.radians(-148), math.radians(-90)), False)
sketch12.addGeometry(Part.LineSegment(App.Vector(-9.44, -13.89, 0), App.Vector(-9.56, -13.71, 0)), False)
sketch12.addGeometry(Part.ArcOfCircle(Part.Circle(App.Vector(-10.83, -14.5, 0), App.Vector(0, 0, 1), 1.5), math.radians(32), math.radians(90)), False)
sketch12.addConstraint(Sketcher.Constraint("Coincident", 0, 2, 1, 1))
sketch12.addConstraint(Sketcher.Constraint("Coincident", 1, 2, 2, 1))
sketch12.addConstraint(Sketcher.Constraint("Tangent", 2, 2, 3, 2))
sketch12.addConstraint(Sketcher.Constraint("Tangent", 3, 1, 4, 1))
sketch12.addConstraint(Sketcher.Constraint("Tangent", 4, 2, 5, 1))
sketch12.addConstraint(Sketcher.Constraint("Tangent", 5, 2, 6, 1))
sketch12.addConstraint(Sketcher.Constraint("Coincident", 6, 2, 7, 1))
sketch12.addConstraint(Sketcher.Constraint("Coincident", 7, 2, 8, 1))
sketch12.addConstraint(Sketcher.Constraint("Tangent", 8, 2, 9, 2))
sketch12.addConstraint(Sketcher.Constraint("Tangent", 9, 1, 10, 1))
sketch12.addConstraint(Sketcher.Constraint("Tangent", 10, 2, 11, 1))
sketch12.addConstraint(Sketcher.Constraint("Tangent", 11, 2, 0, 1))
sketch12.addConstraint(Sketcher.Constraint("Horizontal", 0))
sketch12.addConstraint(Sketcher.Constraint("Vertical", 1))
sketch12.addConstraint(Sketcher.Constraint("Horizontal", 2))
sketch12.addConstraint(Sketcher.Constraint("Horizontal", 6))
sketch12.addConstraint(Sketcher.Constraint("Vertical", 7))
sketch12.addConstraint(Sketcher.Constraint("Horizontal", 8))
sketch12.addConstraint(Sketcher.Constraint("Coincident", 9, 3, 5, 3))
sketch12.addConstraint(Sketcher.Constraint("Coincident", 11, 3, 3, 3))
sketch12.addConstraint(Sketcher.Constraint("Equal", 9, 11))
sketch12.addConstraint(Sketcher.Constraint("Parallel", 4, 10))
sketch12.addConstraint(Sketcher.Constraint("Equal", 2, 6))
sketch12.addConstraint(Sketcher.Constraint("Radius", 3, 1.8))
sketch12.addConstraint(Sketcher.Constraint("Radius", 5, 1.2))
sketch12.addConstraint(Sketcher.Constraint("DistanceX", 0, 2, -1, 1, 11.0))
sketch12.addConstraint(Sketcher.Constraint("DistanceY", 0, 2, -1, 1, 13.0))
sketch12.addConstraint(Sketcher.Constraint("DistanceX", 6, 2, -1, 1, 8.0))
sketch12.addConstraint(Sketcher.Constraint("DistanceY", 5, 3, -1, 1, 13.1))
sketch12.addConstraint(Sketcher.Constraint("DistanceY", 3, 1, -1, 1, 13.546002))
pad7 = body.newObject("PartDesign::Pad", "Pad006")
pad7.Profile = sketch12
pad7.Length = 5

# Sketch on XY plane
sketch13 = body.newObject("Sketcher::SketchObject", "Sketch012")
sketch13.AttachmentSupport = (doc.getObject("XY_Plane"), [""])
sketch13.MapMode = "FlatFace"
sketch13.AttachmentOffset = App.Placement(App.Vector(0, 0, -14.3), App.Rotation())
sketch13.addGeometry(Part.LineSegment(App.Vector(-24.6, -8, 0), App.Vector(-19.6, -8, 0)), False)
sketch13.addGeometry(Part.LineSegment(App.Vector(-19.6, -8, 0), App.Vector(-19.6, -4.1, 0)), False)
sketch13.addGeometry(Part.ArcOfCircle(Part.Circle(App.Vector(-20.2, -4.1, 0), App.Vector(0, 0, 1), 0.6), math.radians(0), math.radians(90)), False)
sketch13.addGeometry(Part.LineSegment(App.Vector(-20.2, -3.5, 0), App.Vector(-34, -3.5, 0)), False)
sketch13.addGeometry(Part.ArcOfCircle(Part.Circle(App.Vector(-34, -4.1, 0), App.Vector(0, 0, 1), 0.6), math.radians(90), math.radians(180)), False)
sketch13.addGeometry(Part.LineSegment(App.Vector(-34.6, -4.1, 0), App.Vector(-34.6, -11, 0)), False)
sketch13.addGeometry(Part.LineSegment(App.Vector(-34.6, -11, 0), App.Vector(-28.1, -11, 0)), False)
sketch13.addGeometry(Part.LineSegment(App.Vector(-28.1, -11, 0), App.Vector(-28.1, -6.8, 0)), False)
sketch13.addGeometry(Part.ArcOfCircle(Part.Circle(App.Vector(-27.5, -6.8, 0), App.Vector(0, 0, 1), 0.6), math.radians(90), math.radians(180)), False)
sketch13.addGeometry(Part.LineSegment(App.Vector(-27.5, -6.2, 0), App.Vector(-25.2, -6.2, 0)), False)
sketch13.addGeometry(Part.ArcOfCircle(Part.Circle(App.Vector(-25.2, -6.8, 0), App.Vector(0, 0, 1), 0.6), math.radians(0), math.radians(90)), False)
sketch13.addGeometry(Part.LineSegment(App.Vector(-24.6, -6.8, 0), App.Vector(-24.6, -8, 0)), False)
sketch13.addConstraint(Sketcher.Constraint("Coincident", 0, 2, 1, 1))
sketch13.addConstraint(Sketcher.Constraint("Tangent", 1, 2, 2, 1))
sketch13.addConstraint(Sketcher.Constraint("Tangent", 2, 2, 3, 1))
sketch13.addConstraint(Sketcher.Constraint("Tangent", 3, 2, 4, 1))
sketch13.addConstraint(Sketcher.Constraint("Tangent", 4, 2, 5, 1))
sketch13.addConstraint(Sketcher.Constraint("Coincident", 5, 2, 6, 1))
sketch13.addConstraint(Sketcher.Constraint("Coincident", 6, 2, 7, 1))
sketch13.addConstraint(Sketcher.Constraint("Tangent", 7, 2, 8, 2))
sketch13.addConstraint(Sketcher.Constraint("Tangent", 8, 1, 9, 1))
sketch13.addConstraint(Sketcher.Constraint("Tangent", 9, 2, 10, 2))
sketch13.addConstraint(Sketcher.Constraint("Tangent", 10, 1, 11, 1))
sketch13.addConstraint(Sketcher.Constraint("Coincident", 11, 2, 0, 1))
sketch13.addConstraint(Sketcher.Constraint("Horizontal", 0))
sketch13.addConstraint(Sketcher.Constraint("Vertical", 1))
sketch13.addConstraint(Sketcher.Constraint("Horizontal", 3))
sketch13.addConstraint(Sketcher.Constraint("Vertical", 5))
sketch13.addConstraint(Sketcher.Constraint("Horizontal", 6))
sketch13.addConstraint(Sketcher.Constraint("Vertical", 7))
sketch13.addConstraint(Sketcher.Constraint("Horizontal", 9))
sketch13.addConstraint(Sketcher.Constraint("Vertical", 11))
sketch13.addConstraint(Sketcher.Constraint("Equal", 2, 4))
sketch13.addConstraint(Sketcher.Constraint("Equal", 4, 8))
sketch13.addConstraint(Sketcher.Constraint("Equal", 8, 10))
sketch13.addConstraint(Sketcher.Constraint("Radius", 2, 0.6))
sketch13.addConstraint(Sketcher.Constraint("DistanceX", 0, 1, 0, 2, 5.0))
sketch13.addConstraint(Sketcher.Constraint("DistanceX", 3, 2, 3, 1, 13.8))
sketch13.addConstraint(Sketcher.Constraint("DistanceX", 6, 1, 6, 2, 6.5))
sketch13.addConstraint(Sketcher.Constraint("DistanceY", 1, 1, 1, 2, 3.9))
sketch13.addConstraint(Sketcher.Constraint("DistanceY", 5, 2, 5, 1, 6.9))
sketch13.addConstraint(Sketcher.Constraint("DistanceY", 7, 1, 7, 2, 4.2))
sketch13.addConstraint(Sketcher.Constraint("DistanceX", 4, 3, -1, 1, 34.0))
sketch13.addConstraint(Sketcher.Constraint("DistanceY", 0, 2, -1, 1, 8.0))
pad8 = body.newObject("PartDesign::Pad", "Pad007")
pad8.Profile = sketch13
pad8.Length = 0.3
pad8.Reversed = True

# Sketch on an angled plane
sketch14 = body.newObject("Sketcher::SketchObject", "Sketch013")
sketch14.Placement = App.Placement(App.Vector(0, 8.024039, -2.934793), App.Rotation(App.Vector(1, 0, 0), App.Vector(0, -0.343495786, -0.939154218), App.Vector(0, 0.939154218, -0.343495786), "ZXY"))
sketch14.addGeometry(Part.Circle(App.Vector(0.5, 48, 0), App.Vector(0, 0, 1), 0.7), False)  # 0
sketch14.addGeometry(Part.Circle(App.Vector(19.5, 32.5, 0), App.Vector(0, 0, 1), 0.7), False)  # 1
add_polygon(sketch14, [(2, 54.6), (2, 52.6), (14, 52.6), (14, 54.6)])  # lines 2-5
sketch14.addConstraint(Sketcher.Constraint("Vertical", 2))
sketch14.addConstraint(Sketcher.Constraint("Horizontal", 3))
sketch14.addConstraint(Sketcher.Constraint("Vertical", 4))
sketch14.addConstraint(Sketcher.Constraint("Horizontal", 5))
sketch14.addConstraint(Sketcher.Constraint("Equal", 0, 1))
sketch14.addConstraint(Sketcher.Constraint("Diameter", 0, 1.3))
sketch14.addConstraint(Sketcher.Constraint("DistanceX", 3, 1, 3, 2, 12.0))
sketch14.addConstraint(Sketcher.Constraint("DistanceY", 2, 2, 2, 1, 2.0))
sketch14.addConstraint(Sketcher.Constraint("DistanceX", -1, 1, 2, 2, 2.0))
sketch14.addConstraint(Sketcher.Constraint("DistanceX", 0, 3, 1, 3, 19.0))
sketch14.addConstraint(Sketcher.Constraint("DistanceX", -1, 1, 0, 3, 0.5))
sketch14.addConstraint(Sketcher.Constraint("DistanceY", 1, 3, 0, 3, 15.5))
sketch14.addConstraint(Sketcher.Constraint("DistanceY", 0, 3, 2, 2, 4.6))
sketch14.addConstraint(Sketcher.Constraint("DistanceY", -1, 1, 0, 3, 47.950576))
pocket6 = body.newObject("PartDesign::Pocket", "Pocket005")
pocket6.Profile = sketch14
pocket6.Length = 4

# Sketch on XZ plane
sketch15 = body.newObject("Sketcher::SketchObject", "Sketch014")
sketch15.AttachmentSupport = (doc.getObject("XZ_Plane"), [""])
sketch15.MapMode = "FlatFace"
sketch15.AttachmentOffset = App.Placement(App.Vector(0, 0, -0.3), App.Rotation())
sketch15.addGeometry(Part.Circle(App.Vector(2.8, -20.2, 0), App.Vector(0, 0, 1), 0.7), False)
sketch15.addGeometry(Part.Circle(App.Vector(2.8, -7.2, 0), App.Vector(0, 0, 1), 0.7), False)
sketch15.addGeometry(Part.Circle(App.Vector(19.2, -7.2, 0), App.Vector(0, 0, 1), 0.7), False)
sketch15.addConstraint(Sketcher.Constraint("Equal", 0, 1))
sketch15.addConstraint(Sketcher.Constraint("Equal", 1, 2))
sketch15.addConstraint(Sketcher.Constraint("Horizontal", 1, 3, 2, 3))
sketch15.addConstraint(Sketcher.Constraint("Vertical", 0, 3, 1, 3))
sketch15.addConstraint(Sketcher.Constraint("Diameter", 0, 1.3))
sketch15.addConstraint(Sketcher.Constraint("DistanceY", 0, 3, 1, 3, 13.0))
sketch15.addConstraint(Sketcher.Constraint("DistanceX", -1, 1, 0, 3, 2.8))
sketch15.addConstraint(Sketcher.Constraint("DistanceX", -1, 1, 2, 3, 19.2))
sketch15.addConstraint(Sketcher.Constraint("DistanceY", 0, 3, -1, 1, 20.25))
pocket7 = body.newObject("PartDesign::Pocket", "Pocket006")
pocket7.Profile = sketch15
pocket7.Length = 4
pocket7.Reversed = True

# Sketch on XY plane
sketch16 = body.newObject("Sketcher::SketchObject", "Sketch015")
sketch16.AttachmentSupport = (doc.getObject("XY_Plane"), [""])
sketch16.MapMode = "FlatFace"
sketch16.AttachmentOffset = App.Placement(App.Vector(0, 0, 0.3), App.Rotation())
sketch16.addGeometry(Part.Circle(App.Vector(19, -6, 0), App.Vector(0, 0, 1), 0.7), False)
sketch16.addGeometry(Part.Circle(App.Vector(4, -23, 0), App.Vector(0, 0, 1), 0.7), False)
sketch16.addConstraint(Sketcher.Constraint("Equal", 0, 1))
sketch16.addConstraint(Sketcher.Constraint("Diameter", 0, 1.3))
sketch16.addConstraint(Sketcher.Constraint("DistanceX", -1, 1, 0, 3, 19.0))
sketch16.addConstraint(Sketcher.Constraint("DistanceY", 0, 3, -1, 1, 6.0))
sketch16.addConstraint(Sketcher.Constraint("DistanceX", -1, 1, 1, 3, 4.0))
sketch16.addConstraint(Sketcher.Constraint("DistanceY", 1, 3, -1, 1, 23.0))
pocket8 = body.newObject("PartDesign::Pocket", "Pocket007")
pocket8.Profile = sketch16
pocket8.Length = 4

doc.recompute()
